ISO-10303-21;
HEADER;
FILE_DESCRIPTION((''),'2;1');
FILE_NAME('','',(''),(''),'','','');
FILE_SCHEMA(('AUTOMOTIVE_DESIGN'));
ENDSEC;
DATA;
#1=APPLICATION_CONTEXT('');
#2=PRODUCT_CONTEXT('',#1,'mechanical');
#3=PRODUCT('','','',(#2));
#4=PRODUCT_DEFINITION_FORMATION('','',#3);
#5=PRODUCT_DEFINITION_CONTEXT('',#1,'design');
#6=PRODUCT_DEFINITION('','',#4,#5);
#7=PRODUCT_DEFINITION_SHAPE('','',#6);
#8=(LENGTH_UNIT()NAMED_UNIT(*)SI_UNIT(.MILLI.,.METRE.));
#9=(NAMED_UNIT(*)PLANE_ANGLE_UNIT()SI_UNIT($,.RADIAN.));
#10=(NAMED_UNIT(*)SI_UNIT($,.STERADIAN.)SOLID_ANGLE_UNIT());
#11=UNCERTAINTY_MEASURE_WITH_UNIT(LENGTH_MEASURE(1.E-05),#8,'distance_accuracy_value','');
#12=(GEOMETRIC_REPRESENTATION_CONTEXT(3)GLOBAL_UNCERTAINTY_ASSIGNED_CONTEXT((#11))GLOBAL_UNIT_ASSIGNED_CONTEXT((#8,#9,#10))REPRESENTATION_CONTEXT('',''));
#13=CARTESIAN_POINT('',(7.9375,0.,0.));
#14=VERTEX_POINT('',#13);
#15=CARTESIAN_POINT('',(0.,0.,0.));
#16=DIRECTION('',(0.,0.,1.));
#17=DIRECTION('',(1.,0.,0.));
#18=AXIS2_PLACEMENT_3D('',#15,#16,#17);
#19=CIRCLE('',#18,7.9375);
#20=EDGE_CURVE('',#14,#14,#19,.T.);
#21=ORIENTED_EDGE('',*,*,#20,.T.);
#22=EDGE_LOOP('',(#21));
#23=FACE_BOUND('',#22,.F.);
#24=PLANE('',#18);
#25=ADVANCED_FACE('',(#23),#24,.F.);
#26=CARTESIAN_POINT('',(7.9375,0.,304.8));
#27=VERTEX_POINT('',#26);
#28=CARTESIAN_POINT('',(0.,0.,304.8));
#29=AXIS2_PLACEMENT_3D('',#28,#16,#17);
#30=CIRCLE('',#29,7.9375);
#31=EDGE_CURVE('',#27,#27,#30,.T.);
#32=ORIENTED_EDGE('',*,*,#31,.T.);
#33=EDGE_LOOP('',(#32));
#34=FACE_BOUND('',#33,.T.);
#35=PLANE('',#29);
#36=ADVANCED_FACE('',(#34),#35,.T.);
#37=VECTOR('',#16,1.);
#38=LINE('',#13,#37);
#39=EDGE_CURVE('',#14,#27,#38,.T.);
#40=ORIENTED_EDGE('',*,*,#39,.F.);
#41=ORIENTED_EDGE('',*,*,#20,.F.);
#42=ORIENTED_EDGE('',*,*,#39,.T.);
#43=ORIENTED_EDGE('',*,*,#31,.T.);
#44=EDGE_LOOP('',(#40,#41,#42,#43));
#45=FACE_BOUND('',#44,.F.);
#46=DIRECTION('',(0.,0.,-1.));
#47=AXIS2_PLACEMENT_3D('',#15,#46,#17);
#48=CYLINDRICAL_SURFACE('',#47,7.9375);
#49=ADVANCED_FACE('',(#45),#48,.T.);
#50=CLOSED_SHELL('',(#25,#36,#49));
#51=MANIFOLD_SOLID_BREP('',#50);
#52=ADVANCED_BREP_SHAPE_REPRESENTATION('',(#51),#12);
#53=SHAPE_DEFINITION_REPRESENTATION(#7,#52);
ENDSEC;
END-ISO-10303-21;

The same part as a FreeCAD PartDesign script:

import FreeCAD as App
import Part
import Sketcher

V = App.Vector
Q = App.Units.Quantity

doc = App.newDocument("Part")
body = doc.addObject("PartDesign::Body", "Body")

sketch1 = doc.addObject("Sketcher::SketchObject", "Sketch")
body.addObject(sketch1)
sketch1.AttachmentSupport = (doc.XY_Plane, [""])
sketch1.MapMode = "FlatFace"
sketch1.addGeometry(Part.Circle(V(0, 0, 0), V(0, 0, 1), 8), False)
sketch1.addConstraint(Sketcher.Constraint("Coincident", 0, 3, -1, 1))
sketch1.addConstraint(Sketcher.Constraint("Diameter", 0, Q("0.625 in")))
pad1 = doc.addObject("PartDesign::Pad", "Pad")
body.addObject(pad1)
pad1.Profile = sketch1
pad1.Length = Q("12 in")

doc.recompute()
